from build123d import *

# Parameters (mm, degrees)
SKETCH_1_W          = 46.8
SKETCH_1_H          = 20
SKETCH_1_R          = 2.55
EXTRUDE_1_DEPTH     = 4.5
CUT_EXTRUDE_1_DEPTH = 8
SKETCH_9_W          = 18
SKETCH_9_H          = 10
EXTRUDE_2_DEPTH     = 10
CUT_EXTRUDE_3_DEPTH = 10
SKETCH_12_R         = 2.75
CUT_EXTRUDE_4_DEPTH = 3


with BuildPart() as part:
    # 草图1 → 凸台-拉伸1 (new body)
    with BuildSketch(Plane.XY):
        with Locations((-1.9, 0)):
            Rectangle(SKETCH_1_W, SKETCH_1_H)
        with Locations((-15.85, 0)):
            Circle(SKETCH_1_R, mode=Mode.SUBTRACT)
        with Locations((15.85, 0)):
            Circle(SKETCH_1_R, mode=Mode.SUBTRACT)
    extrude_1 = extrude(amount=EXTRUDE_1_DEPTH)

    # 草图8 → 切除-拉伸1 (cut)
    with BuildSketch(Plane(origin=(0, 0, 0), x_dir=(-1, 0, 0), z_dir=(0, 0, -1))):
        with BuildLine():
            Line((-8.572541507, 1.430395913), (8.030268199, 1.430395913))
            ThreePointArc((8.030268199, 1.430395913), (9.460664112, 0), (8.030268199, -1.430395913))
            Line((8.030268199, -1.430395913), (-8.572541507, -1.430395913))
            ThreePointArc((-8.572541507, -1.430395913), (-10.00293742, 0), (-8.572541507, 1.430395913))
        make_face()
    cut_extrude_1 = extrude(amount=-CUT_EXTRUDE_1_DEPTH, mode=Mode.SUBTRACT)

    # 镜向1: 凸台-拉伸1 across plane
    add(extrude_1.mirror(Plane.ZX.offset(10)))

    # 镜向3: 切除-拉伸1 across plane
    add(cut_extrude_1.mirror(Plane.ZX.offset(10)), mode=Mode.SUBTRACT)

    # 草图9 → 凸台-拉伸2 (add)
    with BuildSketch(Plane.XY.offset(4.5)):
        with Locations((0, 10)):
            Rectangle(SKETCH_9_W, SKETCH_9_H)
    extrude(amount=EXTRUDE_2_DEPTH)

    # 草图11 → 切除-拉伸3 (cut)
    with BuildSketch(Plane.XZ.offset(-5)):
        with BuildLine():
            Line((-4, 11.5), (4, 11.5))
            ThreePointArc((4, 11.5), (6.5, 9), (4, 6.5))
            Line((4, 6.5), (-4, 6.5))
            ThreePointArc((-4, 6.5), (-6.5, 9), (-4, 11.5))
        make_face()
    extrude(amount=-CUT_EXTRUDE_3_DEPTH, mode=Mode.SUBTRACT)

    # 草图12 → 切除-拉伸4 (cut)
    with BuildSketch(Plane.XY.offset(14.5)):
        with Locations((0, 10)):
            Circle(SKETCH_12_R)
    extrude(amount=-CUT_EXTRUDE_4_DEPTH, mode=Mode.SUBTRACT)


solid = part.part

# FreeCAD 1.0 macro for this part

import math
import FreeCAD as App
import Part
import Sketcher

V = App.Vector
Q = App.Units.Quantity


def add_polygon(sketch, points):
    """Adds a closed chain of lines whose ends are joined by coincident constraints."""
    first, n = sketch.GeometryCount, len(points)
    for a, b in zip(points, points[1:] + points[:1]):
        sketch.addGeometry(Part.LineSegment(App.Vector(*a, 0), App.Vector(*b, 0)), False)
    for i in range(n):
        sketch.addConstraint(Sketcher.Constraint("Coincident", first + i, 2, first + (i + 1) % n, 1))

doc = App.newDocument("Part")
body = doc.addObject("PartDesign::Body", "Body")

# Sketch on XY plane
sketch1 = doc.addObject("Sketcher::SketchObject", "Sketch")
body.addObject(sketch1)
sketch1.AttachmentSupport = (doc.XY_Plane, [""])
sketch1.MapMode = "FlatFace"
add_polygon(sketch1, [(-25.3, 10), (-25.3, -10), (21.5, -10), (21.5, 10)])  # lines 0-3
sketch1.addGeometry(Part.Circle(V(-15.85, 0, 0), V(0, 0, 1), 2.55), False)  # 4
sketch1.addGeometry(Part.Circle(V(15.85, 0, 0), V(0, 0, 1), 2.55), False)  # 5
sketch1.addConstraint([
    Sketcher.Constraint("Vertical", 0),
    Sketcher.Constraint("Horizontal", 1),
    Sketcher.Constraint("Vertical", 2),
    Sketcher.Constraint("Horizontal", 3),
    Sketcher.Constraint("Equal", 4, 5),
    Sketcher.Constraint("Symmetric", 4, 3, 5, 3, -1, 1),
    Sketcher.Constraint("PointOnObject", 4, 3, -1),
    Sketcher.Constraint("Diameter", 4, Q("5.1 mm")),
    Sketcher.Constraint("DistanceY", 0, 2, 0, 1, Q("20 mm")),
    Sketcher.Constraint("DistanceX", 1, 1, 1, 2, Q("46.8 mm")),
    Sketcher.Constraint("DistanceY", 0, 2, -1, 1, Q("10 mm")),
    Sketcher.Constraint("DistanceX", 0, 2, -1, 1, Q("25.3 mm")),
    Sketcher.Constraint("DistanceX", 4, 3, 5, 3, Q("31.7 mm")),
])
pad1 = doc.addObject("PartDesign::Pad", "Pad")
body.addObject(pad1)
pad1.Profile = sketch1
pad1.Length = 4.5

# Sketch on XY plane
sketch2 = doc.addObject("Sketcher::SketchObject", "Sketch001")
body.addObject(sketch2)
sketch2.AttachmentSupport = (doc.XY_Plane, [""])
sketch2.MapMode = "FlatFace"
sketch2.addGeometry([
    Part.LineSegment(V(-8.030268, 1.430396, 0), V(8.572542, 1.430396, 0)),
    Part.ArcOfCircle(Part.Circle(V(8.572542, 0, 0), V(0, 0, 1), 1.430396), math.radians(-90), math.radians(90)),
    Part.LineSegment(V(8.572542, -1.430396, 0), V(-8.030268, -1.430396, 0)),
    Part.ArcOfCircle(Part.Circle(V(-8.030268, 0, 0), V(0, 0, 1), 1.430396), math.radians(90), math.radians(270)),
], False)
sketch2.addConstraint([
    Sketcher.Constraint("Tangent", 0, 2, 1, 2),
    Sketcher.Constraint("Tangent", 1, 1, 2, 1),
    Sketcher.Constraint("Tangent", 2, 2, 3, 2),
    Sketcher.Constraint("Tangent", 3, 1, 0, 1),
    Sketcher.Constraint("Horizontal", 0),
    Sketcher.Constraint("Horizontal", 2),
    Sketcher.Constraint("PointOnObject", 1, 3, -1),
    Sketcher.Constraint("Radius", 1, Q("1.430396 mm")),
    Sketcher.Constraint("DistanceX", 0, 1, 0, 2, Q("16.60281 mm")),
    Sketcher.Constraint("DistanceX", -1, 1, 1, 3, Q("8.572542 mm")),
])
pocket1 = doc.addObject("PartDesign::Pocket", "Pocket")
body.addObject(pocket1)
pocket1.Profile = sketch2
pocket1.Length = 8
pocket1.Reversed = True
doc.recompute()

datumplane = doc.addObject("PartDesign::Plane", "DatumPlane")
body.addObject(datumplane)
datumplane.AttachmentSupport = (doc.XZ_Plane, [""])
datumplane.MapMode = "FlatFace"
datumplane.AttachmentOffset = App.Placement(V(0, 0, -10), App.Rotation())
mirrored = doc.addObject("PartDesign::Mirrored", "Mirrored")
body.addObject(mirrored)
mirrored.Originals = [pad1]
mirrored.MirrorPlane = (datumplane, [""])
body.Tip = mirrored
doc.recompute()

datumplane2 = doc.addObject("PartDesign::Plane", "DatumPlane001")
body.addObject(datumplane2)
datumplane2.AttachmentSupport = (doc.XZ_Plane, [""])
datumplane2.MapMode = "FlatFace"
datumplane2.AttachmentOffset = App.Placement(V(0, 0, -10), App.Rotation())
mirrored2 = doc.addObject("PartDesign::Mirrored", "Mirrored001")
body.addObject(mirrored2)
mirrored2.Originals = [pocket1]
mirrored2.MirrorPlane = (datumplane2, [""])
body.Tip = mirrored2

# Sketch on XY plane
sketch3 = doc.addObject("Sketcher::SketchObject", "Sketch002")
body.addObject(sketch3)
sketch3.AttachmentSupport = (doc.XY_Plane, [""])
sketch3.MapMode = "FlatFace"
sketch3.AttachmentOffset = App.Placement(V(0, 0, 4.5), App.Rotation())
add_polygon(sketch3, [(-9, 15), (-9, 5), (9, 5), (9, 15)])  # lines 0-3
sketch3.addConstraint([
    Sketcher.Constraint("Vertical", 0),
    Sketcher.Constraint("Horizontal", 1),
    Sketcher.Constraint("Vertical", 2),
    Sketcher.Constraint("Horizontal", 3),
    Sketcher.Constraint("DistanceX", 1, 1, 1, 2, Q("18 mm")),
    Sketcher.Constraint("DistanceY", 0, 2, 0, 1, Q("10 mm")),
    Sketcher.Constraint("DistanceX", 0, 2, -1, 1, Q("9 mm")),
    Sketcher.Constraint("DistanceY", -1, 1, 0, 2, Q("5 mm")),
])
pad2 = doc.addObject("PartDesign::Pad", "Pad001")
body.addObject(pad2)
pad2.Profile = sketch3
pad2.Length = 10

# Sketch on XZ plane
sketch4 = doc.addObject("Sketcher::SketchObject", "Sketch003")
body.addObject(sketch4)
sketch4.AttachmentSupport = (doc.XZ_Plane, [""])
sketch4.MapMode = "FlatFace"
sketch4.AttachmentOffset = App.Placement(V(0, 0, -5), App.Rotation())
sketch4.addGeometry([
    Part.LineSegment(V(4, 11.5, 0), V(-4, 11.5, 0)),
    Part.ArcOfCircle(Part.Circle(V(-4, 9, 0), V(0, 0, 1), 2.5), math.radians(90), math.radians(270)),
    Part.LineSegment(V(-4, 6.5, 0), V(4, 6.5, 0)),
    Part.ArcOfCircle(Part.Circle(V(4, 9, 0), V(0, 0, 1), 2.5), math.radians(-90), math.radians(90)),
], False)
sketch4.addConstraint([
    Sketcher.Constraint("Tangent", 0, 2, 1, 1),
    Sketcher.Constraint("Tangent", 1, 2, 2, 1),
    Sketcher.Constraint("Tangent", 2, 2, 3, 1),
    Sketcher.Constraint("Tangent", 3, 2, 0, 1),
    Sketcher.Constraint("Horizontal", 0),
    Sketcher.Constraint("Horizontal", 2),
    Sketcher.Constraint("Radius", 1, Q("2.5 mm")),
    Sketcher.Constraint("DistanceX", 0, 2, 0, 1, Q("8 mm")),
    Sketcher.Constraint("DistanceX", 1, 3, -1, 1, Q("4 mm")),
    Sketcher.Constraint("DistanceY", -1, 1, 1, 3, Q("9 mm")),
])
pocket2 = doc.addObject("PartDesign::Pocket", "Pocket001")
body.addObject(pocket2)
pocket2.Profile = sketch4
pocket2.Length = 10

# Sketch on XY plane
sketch5 = doc.addObject("Sketcher::SketchObject", "Sketch004")
body.addObject(sketch5)
sketch5.AttachmentSupport = (doc.XY_Plane, [""])
sketch5.MapMode = "FlatFace"
sketch5.AttachmentOffset = App.Placement(V(0, 0, 14.5), App.Rotation())
sketch5.addGeometry(Part.Circle(V(0, 10, 0), V(0, 0, 1), 2.75), False)
sketch5.addConstraint([
    Sketcher.Constraint("PointOnObject", 0, 3, -2),
    Sketcher.Constraint("Diameter", 0, Q("5.5 mm")),
    Sketcher.Constraint("DistanceY", -1, 1, 0, 3, Q("10 mm")),
])
pocket3 = doc.addObject("PartDesign::Pocket", "Pocket002")
body.addObject(pocket3)
pocket3.Profile = sketch5
pocket3.Length = 3

doc.recompute()
